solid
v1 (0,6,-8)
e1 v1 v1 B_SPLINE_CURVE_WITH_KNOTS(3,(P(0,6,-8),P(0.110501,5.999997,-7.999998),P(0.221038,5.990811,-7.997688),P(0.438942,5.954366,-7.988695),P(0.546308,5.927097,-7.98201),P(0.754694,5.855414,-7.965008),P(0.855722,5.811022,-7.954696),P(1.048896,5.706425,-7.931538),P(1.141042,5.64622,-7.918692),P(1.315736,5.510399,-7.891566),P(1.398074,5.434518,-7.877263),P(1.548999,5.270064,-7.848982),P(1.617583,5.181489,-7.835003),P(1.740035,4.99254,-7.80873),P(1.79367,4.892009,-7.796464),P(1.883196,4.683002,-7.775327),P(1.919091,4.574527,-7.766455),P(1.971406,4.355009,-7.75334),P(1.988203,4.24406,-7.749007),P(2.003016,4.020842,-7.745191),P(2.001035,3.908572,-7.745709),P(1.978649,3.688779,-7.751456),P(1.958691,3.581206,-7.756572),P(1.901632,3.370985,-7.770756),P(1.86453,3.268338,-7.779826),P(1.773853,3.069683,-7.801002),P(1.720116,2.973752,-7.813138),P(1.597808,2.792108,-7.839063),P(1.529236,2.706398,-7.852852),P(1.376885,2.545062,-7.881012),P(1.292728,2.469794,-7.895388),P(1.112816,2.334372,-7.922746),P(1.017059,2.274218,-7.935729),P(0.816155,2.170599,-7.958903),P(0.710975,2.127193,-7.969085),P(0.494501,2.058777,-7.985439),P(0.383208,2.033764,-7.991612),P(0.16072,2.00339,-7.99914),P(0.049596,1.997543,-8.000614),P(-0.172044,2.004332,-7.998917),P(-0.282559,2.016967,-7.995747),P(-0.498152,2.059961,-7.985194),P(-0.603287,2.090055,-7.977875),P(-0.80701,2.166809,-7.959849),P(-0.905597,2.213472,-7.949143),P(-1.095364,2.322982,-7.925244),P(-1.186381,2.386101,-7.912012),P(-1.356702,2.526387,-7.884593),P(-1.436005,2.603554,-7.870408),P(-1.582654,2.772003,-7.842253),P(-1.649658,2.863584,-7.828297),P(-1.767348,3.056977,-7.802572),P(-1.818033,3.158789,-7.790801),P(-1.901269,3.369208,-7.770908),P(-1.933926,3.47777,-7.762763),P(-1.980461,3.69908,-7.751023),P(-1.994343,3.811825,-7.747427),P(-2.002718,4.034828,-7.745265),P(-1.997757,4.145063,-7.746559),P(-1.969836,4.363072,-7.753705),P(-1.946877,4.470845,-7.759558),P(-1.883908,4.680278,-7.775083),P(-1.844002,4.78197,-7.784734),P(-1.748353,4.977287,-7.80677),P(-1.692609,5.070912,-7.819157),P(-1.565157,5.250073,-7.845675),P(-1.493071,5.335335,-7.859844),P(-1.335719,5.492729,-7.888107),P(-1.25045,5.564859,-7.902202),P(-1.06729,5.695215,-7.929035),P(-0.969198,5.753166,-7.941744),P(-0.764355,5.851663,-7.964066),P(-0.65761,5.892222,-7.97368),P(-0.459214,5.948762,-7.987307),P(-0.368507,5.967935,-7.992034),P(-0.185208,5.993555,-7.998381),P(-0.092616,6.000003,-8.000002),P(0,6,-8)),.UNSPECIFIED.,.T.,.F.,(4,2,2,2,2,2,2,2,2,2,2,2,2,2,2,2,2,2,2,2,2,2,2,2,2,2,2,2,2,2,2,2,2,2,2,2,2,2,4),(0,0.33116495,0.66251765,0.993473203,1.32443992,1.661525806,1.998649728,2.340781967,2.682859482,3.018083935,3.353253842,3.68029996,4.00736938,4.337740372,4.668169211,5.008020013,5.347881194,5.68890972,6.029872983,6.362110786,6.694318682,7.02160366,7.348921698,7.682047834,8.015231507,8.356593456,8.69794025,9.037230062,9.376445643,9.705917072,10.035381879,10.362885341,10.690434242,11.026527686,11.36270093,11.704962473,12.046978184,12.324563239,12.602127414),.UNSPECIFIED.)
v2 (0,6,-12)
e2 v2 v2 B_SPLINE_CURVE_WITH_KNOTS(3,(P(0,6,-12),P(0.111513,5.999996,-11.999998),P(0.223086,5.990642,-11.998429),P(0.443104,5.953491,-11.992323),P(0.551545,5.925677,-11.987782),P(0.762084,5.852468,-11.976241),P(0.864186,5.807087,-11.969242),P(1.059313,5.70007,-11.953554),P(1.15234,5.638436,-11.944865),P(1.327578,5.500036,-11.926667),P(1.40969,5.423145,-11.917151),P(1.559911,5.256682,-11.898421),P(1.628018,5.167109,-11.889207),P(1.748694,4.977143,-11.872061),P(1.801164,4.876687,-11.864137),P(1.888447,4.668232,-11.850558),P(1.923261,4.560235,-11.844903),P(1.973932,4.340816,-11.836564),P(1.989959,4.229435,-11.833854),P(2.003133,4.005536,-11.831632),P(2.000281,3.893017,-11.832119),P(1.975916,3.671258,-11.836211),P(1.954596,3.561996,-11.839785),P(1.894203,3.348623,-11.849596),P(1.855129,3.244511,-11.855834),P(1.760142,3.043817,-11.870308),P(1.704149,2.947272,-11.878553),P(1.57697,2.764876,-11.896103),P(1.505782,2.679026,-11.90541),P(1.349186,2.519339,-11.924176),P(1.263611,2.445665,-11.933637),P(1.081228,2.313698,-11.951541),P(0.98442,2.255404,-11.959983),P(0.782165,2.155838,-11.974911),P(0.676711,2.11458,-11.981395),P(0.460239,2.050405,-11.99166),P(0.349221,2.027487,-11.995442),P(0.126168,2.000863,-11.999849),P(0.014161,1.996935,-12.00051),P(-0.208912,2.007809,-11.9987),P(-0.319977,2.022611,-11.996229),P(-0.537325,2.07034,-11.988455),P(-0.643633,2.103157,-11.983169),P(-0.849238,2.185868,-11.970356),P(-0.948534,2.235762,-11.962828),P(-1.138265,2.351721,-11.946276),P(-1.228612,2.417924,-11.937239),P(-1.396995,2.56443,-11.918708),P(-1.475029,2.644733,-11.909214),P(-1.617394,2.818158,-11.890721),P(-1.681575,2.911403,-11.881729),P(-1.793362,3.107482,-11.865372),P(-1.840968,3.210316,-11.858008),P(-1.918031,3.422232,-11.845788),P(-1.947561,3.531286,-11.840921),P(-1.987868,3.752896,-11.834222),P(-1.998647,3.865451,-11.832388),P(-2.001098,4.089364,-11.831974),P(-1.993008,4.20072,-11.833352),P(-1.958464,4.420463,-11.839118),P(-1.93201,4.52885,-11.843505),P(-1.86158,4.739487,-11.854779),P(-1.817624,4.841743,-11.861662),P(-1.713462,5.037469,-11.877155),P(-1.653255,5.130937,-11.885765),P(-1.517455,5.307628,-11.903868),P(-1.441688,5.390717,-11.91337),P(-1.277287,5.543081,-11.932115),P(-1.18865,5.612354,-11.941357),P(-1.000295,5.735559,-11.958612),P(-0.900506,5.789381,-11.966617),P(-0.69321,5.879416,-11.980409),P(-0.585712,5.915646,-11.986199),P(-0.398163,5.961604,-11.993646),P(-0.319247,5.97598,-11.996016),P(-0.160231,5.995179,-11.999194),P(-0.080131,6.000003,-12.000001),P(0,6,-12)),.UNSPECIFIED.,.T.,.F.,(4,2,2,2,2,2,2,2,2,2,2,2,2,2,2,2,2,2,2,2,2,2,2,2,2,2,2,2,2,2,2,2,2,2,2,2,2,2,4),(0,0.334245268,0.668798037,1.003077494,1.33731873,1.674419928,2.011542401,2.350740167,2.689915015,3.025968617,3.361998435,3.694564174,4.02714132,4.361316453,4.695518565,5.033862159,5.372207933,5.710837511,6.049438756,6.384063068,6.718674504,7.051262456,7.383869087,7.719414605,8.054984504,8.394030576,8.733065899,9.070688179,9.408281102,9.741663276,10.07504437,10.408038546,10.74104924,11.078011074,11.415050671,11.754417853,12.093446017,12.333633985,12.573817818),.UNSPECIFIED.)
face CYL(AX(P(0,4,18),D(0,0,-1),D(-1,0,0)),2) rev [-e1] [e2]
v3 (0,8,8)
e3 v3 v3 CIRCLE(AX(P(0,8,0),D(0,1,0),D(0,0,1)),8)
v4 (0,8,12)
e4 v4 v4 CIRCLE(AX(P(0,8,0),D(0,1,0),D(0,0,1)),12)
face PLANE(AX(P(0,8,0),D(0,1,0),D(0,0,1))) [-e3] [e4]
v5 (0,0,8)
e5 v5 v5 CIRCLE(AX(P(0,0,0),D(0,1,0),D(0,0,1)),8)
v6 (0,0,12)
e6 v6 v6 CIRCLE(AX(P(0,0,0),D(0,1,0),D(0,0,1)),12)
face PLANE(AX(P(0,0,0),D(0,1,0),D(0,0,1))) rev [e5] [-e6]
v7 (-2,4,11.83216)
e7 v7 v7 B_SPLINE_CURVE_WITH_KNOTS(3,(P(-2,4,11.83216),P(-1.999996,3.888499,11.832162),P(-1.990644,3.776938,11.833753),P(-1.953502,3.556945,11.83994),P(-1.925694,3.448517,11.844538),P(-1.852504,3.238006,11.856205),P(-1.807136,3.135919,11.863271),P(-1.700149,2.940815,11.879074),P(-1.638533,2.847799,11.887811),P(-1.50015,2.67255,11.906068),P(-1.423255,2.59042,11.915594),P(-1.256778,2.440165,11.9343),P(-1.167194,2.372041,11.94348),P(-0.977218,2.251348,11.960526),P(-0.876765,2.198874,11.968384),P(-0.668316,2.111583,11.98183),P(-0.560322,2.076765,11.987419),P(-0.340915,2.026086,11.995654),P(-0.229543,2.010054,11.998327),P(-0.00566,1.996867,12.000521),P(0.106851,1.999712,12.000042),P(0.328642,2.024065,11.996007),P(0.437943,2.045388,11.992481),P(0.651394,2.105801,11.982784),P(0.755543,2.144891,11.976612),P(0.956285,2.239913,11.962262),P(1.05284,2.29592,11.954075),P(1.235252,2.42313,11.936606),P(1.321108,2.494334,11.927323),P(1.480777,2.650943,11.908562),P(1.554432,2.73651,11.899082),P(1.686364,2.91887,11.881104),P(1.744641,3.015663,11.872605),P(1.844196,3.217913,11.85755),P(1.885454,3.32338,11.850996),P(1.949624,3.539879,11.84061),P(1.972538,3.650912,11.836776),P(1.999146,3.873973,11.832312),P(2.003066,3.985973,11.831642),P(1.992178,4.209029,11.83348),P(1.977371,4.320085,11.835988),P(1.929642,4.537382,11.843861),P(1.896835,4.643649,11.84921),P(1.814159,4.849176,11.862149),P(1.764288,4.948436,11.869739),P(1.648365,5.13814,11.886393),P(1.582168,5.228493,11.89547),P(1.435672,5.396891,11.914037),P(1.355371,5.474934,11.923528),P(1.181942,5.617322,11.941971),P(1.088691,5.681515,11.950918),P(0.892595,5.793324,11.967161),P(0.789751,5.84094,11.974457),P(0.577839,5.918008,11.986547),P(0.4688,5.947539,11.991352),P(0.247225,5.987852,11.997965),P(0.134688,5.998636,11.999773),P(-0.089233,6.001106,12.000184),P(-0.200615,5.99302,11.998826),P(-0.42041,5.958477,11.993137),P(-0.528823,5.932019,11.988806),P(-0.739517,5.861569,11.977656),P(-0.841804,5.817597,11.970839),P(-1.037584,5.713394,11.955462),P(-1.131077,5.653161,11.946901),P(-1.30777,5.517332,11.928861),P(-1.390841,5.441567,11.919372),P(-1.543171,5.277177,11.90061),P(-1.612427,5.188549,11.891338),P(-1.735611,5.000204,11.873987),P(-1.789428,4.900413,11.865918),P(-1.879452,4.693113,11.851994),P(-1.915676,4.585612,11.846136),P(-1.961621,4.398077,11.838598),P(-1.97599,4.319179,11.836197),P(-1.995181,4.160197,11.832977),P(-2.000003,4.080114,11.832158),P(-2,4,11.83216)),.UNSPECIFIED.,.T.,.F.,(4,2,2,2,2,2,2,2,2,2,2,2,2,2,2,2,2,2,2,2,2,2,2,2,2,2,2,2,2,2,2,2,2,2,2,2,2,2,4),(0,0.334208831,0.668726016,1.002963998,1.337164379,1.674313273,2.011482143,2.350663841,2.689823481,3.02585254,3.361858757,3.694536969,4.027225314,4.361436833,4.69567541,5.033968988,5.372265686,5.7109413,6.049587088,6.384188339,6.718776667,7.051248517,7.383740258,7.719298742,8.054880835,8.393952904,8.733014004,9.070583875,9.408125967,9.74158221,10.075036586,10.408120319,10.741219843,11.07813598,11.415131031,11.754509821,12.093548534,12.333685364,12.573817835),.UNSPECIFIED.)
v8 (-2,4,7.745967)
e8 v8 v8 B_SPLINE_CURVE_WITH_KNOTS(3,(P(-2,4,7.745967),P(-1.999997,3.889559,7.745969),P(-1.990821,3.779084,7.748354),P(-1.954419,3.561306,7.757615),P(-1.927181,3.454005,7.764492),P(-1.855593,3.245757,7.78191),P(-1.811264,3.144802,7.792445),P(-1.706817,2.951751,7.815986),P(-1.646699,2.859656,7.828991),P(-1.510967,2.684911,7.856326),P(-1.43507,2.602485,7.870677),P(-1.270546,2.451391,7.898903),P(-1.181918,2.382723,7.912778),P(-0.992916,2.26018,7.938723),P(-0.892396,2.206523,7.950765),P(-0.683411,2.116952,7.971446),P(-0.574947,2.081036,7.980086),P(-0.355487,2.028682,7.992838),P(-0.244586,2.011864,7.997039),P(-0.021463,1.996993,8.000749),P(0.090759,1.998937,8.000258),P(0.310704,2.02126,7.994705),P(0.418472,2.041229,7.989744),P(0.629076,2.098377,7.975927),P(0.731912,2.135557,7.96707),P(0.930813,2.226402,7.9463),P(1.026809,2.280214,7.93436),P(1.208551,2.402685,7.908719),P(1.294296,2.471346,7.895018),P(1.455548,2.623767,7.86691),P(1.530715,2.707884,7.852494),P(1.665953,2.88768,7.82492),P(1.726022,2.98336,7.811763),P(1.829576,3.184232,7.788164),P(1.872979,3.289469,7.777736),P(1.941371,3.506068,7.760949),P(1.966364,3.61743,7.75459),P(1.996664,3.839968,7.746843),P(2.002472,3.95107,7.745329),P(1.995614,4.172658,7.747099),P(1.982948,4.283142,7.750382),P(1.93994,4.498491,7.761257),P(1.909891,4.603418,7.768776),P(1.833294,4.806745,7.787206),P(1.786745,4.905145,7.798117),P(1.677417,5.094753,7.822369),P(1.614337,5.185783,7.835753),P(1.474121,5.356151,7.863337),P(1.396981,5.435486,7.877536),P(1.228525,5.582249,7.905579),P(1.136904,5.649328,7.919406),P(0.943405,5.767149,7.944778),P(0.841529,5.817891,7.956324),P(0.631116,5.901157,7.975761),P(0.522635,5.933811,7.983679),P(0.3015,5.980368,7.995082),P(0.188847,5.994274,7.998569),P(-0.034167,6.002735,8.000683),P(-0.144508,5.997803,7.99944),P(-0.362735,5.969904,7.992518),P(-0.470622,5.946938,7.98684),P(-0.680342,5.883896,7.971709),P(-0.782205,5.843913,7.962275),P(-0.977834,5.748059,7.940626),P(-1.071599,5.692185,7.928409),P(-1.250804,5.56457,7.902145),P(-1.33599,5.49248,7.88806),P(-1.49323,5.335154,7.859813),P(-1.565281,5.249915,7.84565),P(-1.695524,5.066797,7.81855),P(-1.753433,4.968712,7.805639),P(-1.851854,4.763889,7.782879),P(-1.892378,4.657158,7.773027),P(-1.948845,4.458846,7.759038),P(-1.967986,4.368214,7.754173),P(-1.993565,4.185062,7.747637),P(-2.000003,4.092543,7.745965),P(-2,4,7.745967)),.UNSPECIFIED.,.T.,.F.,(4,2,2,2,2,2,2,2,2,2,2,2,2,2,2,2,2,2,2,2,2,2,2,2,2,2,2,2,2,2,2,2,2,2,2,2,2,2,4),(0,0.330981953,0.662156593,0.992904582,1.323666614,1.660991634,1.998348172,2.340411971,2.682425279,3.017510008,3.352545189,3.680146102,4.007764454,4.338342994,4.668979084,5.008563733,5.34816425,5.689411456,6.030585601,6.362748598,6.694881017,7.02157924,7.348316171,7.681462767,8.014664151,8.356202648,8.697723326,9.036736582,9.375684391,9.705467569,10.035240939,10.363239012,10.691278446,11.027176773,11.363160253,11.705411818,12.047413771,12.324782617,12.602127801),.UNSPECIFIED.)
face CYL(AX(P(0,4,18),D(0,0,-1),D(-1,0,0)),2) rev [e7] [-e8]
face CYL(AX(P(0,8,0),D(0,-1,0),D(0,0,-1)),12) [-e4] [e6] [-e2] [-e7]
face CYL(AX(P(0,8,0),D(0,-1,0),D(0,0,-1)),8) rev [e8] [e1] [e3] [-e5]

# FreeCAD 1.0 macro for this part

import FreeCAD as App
import Part
import Sketcher

V = App.Vector

doc = App.newDocument("Part")
body = doc.addObject("PartDesign::Body", "Body")

# Sketch on XZ plane
sketch1 = body.newObject("Sketcher::SketchObject", "Sketch")
sketch1.AttachmentSupport = (doc.getObject("XZ_Plane"), [""])
sketch1.MapMode = "FlatFace"
sketch1.addGeometry([
    Part.Circle(V(0, 0, 0), V(0, 0, 1), 12),
    Part.Circle(V(0, 0, 0), V(0, 0, 1), 8),
], False)
sketch1.addConstraint([
    Sketcher.Constraint("Coincident", 0, 3, -1, 1),
    Sketcher.Constraint("Coincident", 1, 3, -1, 1),
    Sketcher.Constraint("Diameter", 0, 24.0),
    Sketcher.Constraint("Diameter", 1, 16.0),
])
pad1 = body.newObject("PartDesign::Pad", "Pad")
pad1.Profile = sketch1
pad1.Length = 8
pad1.Reversed = True

# Sketch on XY plane
sketch2 = body.newObject("Sketcher::SketchObject", "Sketch001")
sketch2.AttachmentSupport = (doc.getObject("XY_Plane"), [""])
sketch2.MapMode = "FlatFace"
sketch2.addGeometry(Part.Circle(V(0, 4, 0), V(0, 0, 1), 2), False)
sketch2.addConstraint([
    Sketcher.Constraint("PointOnObject", 0, 3, -2),
    Sketcher.Constraint("Diameter", 0, 4.0),
    Sketcher.Constraint("DistanceY", -1, 1, 0, 3, 4.0),
])
pocket1 = body.newObject("PartDesign::Pocket", "Pocket")
pocket1.Profile = sketch2
pocket1.Type = "ThroughAll"
pocket1.Midplane = True

doc.recompute()
